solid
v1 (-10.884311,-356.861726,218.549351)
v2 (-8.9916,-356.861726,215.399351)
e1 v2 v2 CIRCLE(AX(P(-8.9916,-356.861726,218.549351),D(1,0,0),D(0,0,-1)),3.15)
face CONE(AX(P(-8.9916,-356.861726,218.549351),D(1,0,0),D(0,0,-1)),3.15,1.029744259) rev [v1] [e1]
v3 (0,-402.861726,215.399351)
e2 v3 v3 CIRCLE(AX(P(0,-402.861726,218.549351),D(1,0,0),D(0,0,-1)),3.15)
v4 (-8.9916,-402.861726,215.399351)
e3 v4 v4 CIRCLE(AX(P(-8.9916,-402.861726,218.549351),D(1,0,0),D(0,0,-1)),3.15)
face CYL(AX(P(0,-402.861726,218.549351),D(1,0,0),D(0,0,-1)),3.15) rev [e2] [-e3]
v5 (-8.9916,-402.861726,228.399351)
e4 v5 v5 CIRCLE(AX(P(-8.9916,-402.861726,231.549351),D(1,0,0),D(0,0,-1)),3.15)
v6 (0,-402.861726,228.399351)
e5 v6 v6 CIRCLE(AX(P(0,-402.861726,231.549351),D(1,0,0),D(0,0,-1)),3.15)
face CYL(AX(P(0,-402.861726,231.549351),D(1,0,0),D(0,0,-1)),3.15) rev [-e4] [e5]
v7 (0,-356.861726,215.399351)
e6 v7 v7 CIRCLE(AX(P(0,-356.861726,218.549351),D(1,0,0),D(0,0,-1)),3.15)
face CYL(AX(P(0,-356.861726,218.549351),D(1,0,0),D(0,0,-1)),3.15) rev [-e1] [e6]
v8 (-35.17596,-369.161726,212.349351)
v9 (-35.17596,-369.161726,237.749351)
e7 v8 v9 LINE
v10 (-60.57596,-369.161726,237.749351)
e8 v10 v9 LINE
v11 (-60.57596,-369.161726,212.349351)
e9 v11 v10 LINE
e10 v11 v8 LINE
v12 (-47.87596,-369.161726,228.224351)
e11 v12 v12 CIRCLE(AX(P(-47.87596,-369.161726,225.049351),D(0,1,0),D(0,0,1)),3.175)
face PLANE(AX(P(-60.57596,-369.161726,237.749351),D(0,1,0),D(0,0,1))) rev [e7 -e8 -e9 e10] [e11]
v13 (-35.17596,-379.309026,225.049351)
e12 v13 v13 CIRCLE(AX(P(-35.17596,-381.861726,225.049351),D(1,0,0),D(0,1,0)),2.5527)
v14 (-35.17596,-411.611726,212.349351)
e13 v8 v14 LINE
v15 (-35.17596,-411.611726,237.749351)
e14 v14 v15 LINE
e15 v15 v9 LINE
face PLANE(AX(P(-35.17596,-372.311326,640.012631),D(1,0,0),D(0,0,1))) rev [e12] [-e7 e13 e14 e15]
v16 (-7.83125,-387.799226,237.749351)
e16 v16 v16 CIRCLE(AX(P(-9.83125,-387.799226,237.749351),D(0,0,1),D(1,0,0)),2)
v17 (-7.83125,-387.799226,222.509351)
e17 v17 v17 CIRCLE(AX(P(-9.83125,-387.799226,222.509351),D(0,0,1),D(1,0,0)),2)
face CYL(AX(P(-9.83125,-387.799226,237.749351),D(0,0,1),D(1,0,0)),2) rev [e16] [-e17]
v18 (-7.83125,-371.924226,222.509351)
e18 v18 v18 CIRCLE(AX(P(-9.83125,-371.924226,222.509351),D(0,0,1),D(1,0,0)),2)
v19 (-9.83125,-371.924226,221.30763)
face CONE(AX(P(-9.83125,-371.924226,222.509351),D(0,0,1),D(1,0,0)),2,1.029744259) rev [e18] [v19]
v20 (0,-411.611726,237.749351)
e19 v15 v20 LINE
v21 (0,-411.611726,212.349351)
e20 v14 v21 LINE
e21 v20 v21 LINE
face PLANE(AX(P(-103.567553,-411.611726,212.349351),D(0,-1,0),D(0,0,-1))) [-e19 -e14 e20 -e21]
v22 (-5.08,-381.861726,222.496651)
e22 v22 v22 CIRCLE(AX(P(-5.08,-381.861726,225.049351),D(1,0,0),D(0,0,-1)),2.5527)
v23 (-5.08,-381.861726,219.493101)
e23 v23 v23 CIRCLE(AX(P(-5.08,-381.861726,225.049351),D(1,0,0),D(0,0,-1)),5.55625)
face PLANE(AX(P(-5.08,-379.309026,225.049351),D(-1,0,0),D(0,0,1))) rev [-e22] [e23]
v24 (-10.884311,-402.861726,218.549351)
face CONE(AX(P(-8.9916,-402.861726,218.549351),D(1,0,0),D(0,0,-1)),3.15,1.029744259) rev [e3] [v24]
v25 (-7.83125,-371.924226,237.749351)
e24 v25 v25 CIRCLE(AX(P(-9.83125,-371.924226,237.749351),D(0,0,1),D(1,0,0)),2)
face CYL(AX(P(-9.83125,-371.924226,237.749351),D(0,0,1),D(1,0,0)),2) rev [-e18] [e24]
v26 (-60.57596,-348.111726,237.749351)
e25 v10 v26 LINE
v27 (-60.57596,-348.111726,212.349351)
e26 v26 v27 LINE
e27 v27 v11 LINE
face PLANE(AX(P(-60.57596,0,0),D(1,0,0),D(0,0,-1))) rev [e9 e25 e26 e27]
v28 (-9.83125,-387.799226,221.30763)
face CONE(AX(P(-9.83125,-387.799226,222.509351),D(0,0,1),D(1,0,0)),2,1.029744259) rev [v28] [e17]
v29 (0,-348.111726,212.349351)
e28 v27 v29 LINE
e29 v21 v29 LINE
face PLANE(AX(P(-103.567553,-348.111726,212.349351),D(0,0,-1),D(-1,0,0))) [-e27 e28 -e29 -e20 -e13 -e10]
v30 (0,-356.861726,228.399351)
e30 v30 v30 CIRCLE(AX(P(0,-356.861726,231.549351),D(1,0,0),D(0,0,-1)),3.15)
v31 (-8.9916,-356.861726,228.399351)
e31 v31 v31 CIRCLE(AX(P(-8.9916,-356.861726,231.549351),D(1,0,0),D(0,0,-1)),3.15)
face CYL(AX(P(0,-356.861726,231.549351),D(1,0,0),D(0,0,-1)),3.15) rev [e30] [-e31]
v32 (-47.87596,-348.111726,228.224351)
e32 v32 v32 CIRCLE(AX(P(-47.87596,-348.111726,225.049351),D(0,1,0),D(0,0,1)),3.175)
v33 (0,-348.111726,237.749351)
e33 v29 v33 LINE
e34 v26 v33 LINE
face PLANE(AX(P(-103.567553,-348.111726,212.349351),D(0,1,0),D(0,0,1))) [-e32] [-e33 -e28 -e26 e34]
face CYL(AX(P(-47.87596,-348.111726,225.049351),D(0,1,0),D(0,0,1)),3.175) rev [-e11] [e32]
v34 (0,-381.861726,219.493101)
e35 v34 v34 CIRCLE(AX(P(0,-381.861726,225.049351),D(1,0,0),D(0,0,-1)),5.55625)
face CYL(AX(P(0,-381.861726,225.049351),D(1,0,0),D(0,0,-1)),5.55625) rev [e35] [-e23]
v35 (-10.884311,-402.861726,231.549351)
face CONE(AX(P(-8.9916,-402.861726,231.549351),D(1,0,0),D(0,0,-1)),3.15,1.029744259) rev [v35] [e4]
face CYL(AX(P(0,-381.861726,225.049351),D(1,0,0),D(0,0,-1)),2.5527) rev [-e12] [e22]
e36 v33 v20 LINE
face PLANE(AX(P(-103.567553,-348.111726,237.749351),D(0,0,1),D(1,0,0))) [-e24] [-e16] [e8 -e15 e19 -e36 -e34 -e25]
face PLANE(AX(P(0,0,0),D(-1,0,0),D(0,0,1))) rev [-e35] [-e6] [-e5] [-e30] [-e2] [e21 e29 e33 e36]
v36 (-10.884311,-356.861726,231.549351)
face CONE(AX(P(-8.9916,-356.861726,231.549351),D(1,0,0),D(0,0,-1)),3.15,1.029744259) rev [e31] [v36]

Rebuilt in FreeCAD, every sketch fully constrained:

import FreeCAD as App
import Part
import Sketcher
Q = App.Units.Quantity


def add_polygon(sketch, points):
    """Adds a closed chain of lines whose ends are joined by coincident constraints."""
    first, n = sketch.GeometryCount, len(points)
    for a, b in zip(points, points[1:] + points[:1]):
        sketch.addGeometry(Part.LineSegment(App.Vector(*a, 0), App.Vector(*b, 0)), False)
    for i in range(n):
        sketch.addConstraint(Sketcher.Constraint("Coincident", first + i, 2, first + (i + 1) % n, 1))

doc = App.newDocument("Part")
body = doc.addObject("PartDesign::Body", "Body")

sketch1 = body.newObject("Sketcher::SketchObject", "Sketch")
sketch1.AttachmentSupport = (doc.getObject("YZ_Plane"), [""])
sketch1.MapMode = "FlatFace"
add_polygon(sketch1, [(-348, 238), (-412, 238), (-412, 212), (-348, 212)])
sketch1.addConstraint([
    Sketcher.Constraint("Horizontal", 0),
    Sketcher.Constraint("Vertical", 1),
    Sketcher.Constraint("Horizontal", 2),
    Sketcher.Constraint("Vertical", 3),
    Sketcher.Constraint("DistanceY", 1, 2, 1, 1, Q("1 in")),
    Sketcher.Constraint("DistanceX", 0, 2, 0, 1, Q("2.5 in")),
    Sketcher.Constraint("DistanceY", -1, 1, 0, 2, 237.749351),
    Sketcher.Constraint("DistanceX", 0, 2, -1, 1, 411.611726),
])
pad1 = body.newObject("PartDesign::Pad", "Pad")
pad1.Profile = sketch1
pad1.Length = 35.17596
pad1.Reversed = True

sketch2 = body.newObject("Sketcher::SketchObject", "Sketch001")
sketch2.AttachmentSupport = (doc.getObject("YZ_Plane"), [""])
sketch2.MapMode = "FlatFace"
sketch2.AttachmentOffset = App.Placement(App.Vector(0, 0, -35.17596), App.Rotation())
add_polygon(sketch2, [(-348, 212), (-369, 212), (-369, 238), (-348, 238)])
sketch2.addConstraint([
    Sketcher.Constraint("Horizontal", 0),
    Sketcher.Constraint("Vertical", 1),
    Sketcher.Constraint("Horizontal", 2),
    Sketcher.Constraint("Vertical", 3),
    Sketcher.Constraint("DistanceY", 1, 1, 1, 2, Q("1 in")),
    Sketcher.Constraint("DistanceX", 0, 2, 0, 1, 21.05),
    Sketcher.Constraint("DistanceY", -1, 1, 0, 2, 212.349351),
    Sketcher.Constraint("DistanceX", 0, 2, -1, 1, 369.161726),
])
pad2 = body.newObject("PartDesign::Pad", "Pad001")
pad2.Profile = sketch2
pad2.Length = Q("1 in")
pad2.Reversed = True

sketch3 = body.newObject("Sketcher::SketchObject", "Sketch002")
sketch3.AttachmentSupport = (doc.getObject("XZ_Plane"), [""])
sketch3.MapMode = "FlatFace"
sketch3.AttachmentOffset = App.Placement(App.Vector(0, 0, 348.111726), App.Rotation())
sketch3.addGeometry(Part.Circle(App.Vector(-47.9, 225, 0), App.Vector(0, 0, 1), 3.2), False)
sketch3.addConstraint([
    Sketcher.Constraint("Diameter", 0, Q("0.25 in")),
    Sketcher.Constraint("DistanceX", 0, 3, -1, 1, 47.87596),
    Sketcher.Constraint("DistanceY", -1, 1, 0, 3, 225.049351),
])
doc.recompute()
hole = body.newObject("PartDesign::Hole", "Hole")
hole.Profile = sketch3
hole.ThreadType = "None"
hole.Diameter = Q("0.25 in")
hole.DepthType = "ThroughAll"
hole.Reversed = True

sketch4 = body.newObject("Sketcher::SketchObject", "Sketch003")
sketch4.AttachmentSupport = (doc.getObject("YZ_Plane"), [""])
sketch4.MapMode = "FlatFace"
sketch4.addGeometry([
    Part.Circle(App.Vector(-356.9, 231.5, 0), App.Vector(0, 0, 1), 3.1),
    Part.Circle(App.Vector(-356.9, 218.5, 0), App.Vector(0, 0, 1), 3.1),
    Part.Circle(App.Vector(-402.9, 231.5, 0), App.Vector(0, 0, 1), 3.1),
    Part.Circle(App.Vector(-402.9, 218.5, 0), App.Vector(0, 0, 1), 3.1),
], False)
sketch4.addConstraint([
    Sketcher.Constraint("Equal", 0, 1),
    Sketcher.Constraint("Equal", 1, 2),
    Sketcher.Constraint("Equal", 2, 3),
    Sketcher.Constraint("Horizontal", 0, 3, 2, 3),
    Sketcher.Constraint("Horizontal", 1, 3, 3, 3),
    Sketcher.Constraint("Vertical", 0, 3, 1, 3),
    Sketcher.Constraint("Vertical", 2, 3, 3, 3),
    Sketcher.Constraint("Diameter", 0, 6.3),
    Sketcher.Constraint("DistanceY", 1, 3, 0, 3, 13.0),
    Sketcher.Constraint("DistanceX", 2, 3, 0, 3, 46.0),
    Sketcher.Constraint("DistanceY", -1, 1, 0, 3, 231.549351),
    Sketcher.Constraint("DistanceX", 0, 3, -1, 1, 356.861726),
])
doc.recompute()
hole2 = body.newObject("PartDesign::Hole", "Hole001")
hole2.Profile = sketch4
hole2.ThreadType = "None"
hole2.Diameter = 6.3
hole2.DepthType = "Dimension"
hole2.Depth = Q("0.354 in")
hole2.DrillPoint = "Angled"
hole2.DrillPointAngle = 118

sketch5 = body.newObject("Sketcher::SketchObject", "Sketch004")
sketch5.AttachmentSupport = (doc.getObject("XY_Plane"), [""])
sketch5.MapMode = "FlatFace"
sketch5.AttachmentOffset = App.Placement(App.Vector(0, 0, 237.749351), App.Rotation())
sketch5.addGeometry([
    Part.Circle(App.Vector(-9.8, -371.9, 0), App.Vector(0, 0, 1), 2),
    Part.Circle(App.Vector(-9.8, -387.8, 0), App.Vector(0, 0, 1), 2),
], False)
sketch5.addConstraint([
    Sketcher.Constraint("Equal", 0, 1),
    Sketcher.Constraint("Vertical", 0, 3, 1, 3),
    Sketcher.Constraint("Diameter", 0, 4.0),
    Sketcher.Constraint("DistanceY", 1, 3, 0, 3, Q("0.625 in")),
    Sketcher.Constraint("DistanceX", 0, 3, -1, 1, 9.83125),
    Sketcher.Constraint("DistanceY", 0, 3, -1, 1, 371.924226),
])
doc.recompute()
hole3 = body.newObject("PartDesign::Hole", "Hole002")
hole3.Profile = sketch5
hole3.ThreadType = "None"
hole3.Diameter = 4
hole3.DepthType = "Dimension"
hole3.Depth = Q("0.6 in")
hole3.DrillPoint = "Angled"
hole3.DrillPointAngle = 118

sketch6 = body.newObject("Sketcher::SketchObject", "Sketch005")
sketch6.AttachmentSupport = (doc.getObject("YZ_Plane"), [""])
sketch6.MapMode = "FlatFace"
sketch6.addGeometry(Part.Circle(App.Vector(-381.9, 225, 0), App.Vector(0, 0, 1), 2.6), False)
sketch6.addConstraint([
    Sketcher.Constraint("Diameter", 0, Q("0.201 in")),
    Sketcher.Constraint("DistanceY", -1, 1, 0, 3, 225.049351),
    Sketcher.Constraint("DistanceX", 0, 3, -1, 1, 381.861726),
])
doc.recompute()
hole4 = body.newObject("PartDesign::Hole", "Hole003")
hole4.Profile = sketch6
hole4.ThreadType = "None"
hole4.Diameter = Q("0.201 in")
hole4.DepthType = "Dimension"
hole4.Depth = 35.17596
hole4.DrillPoint = "Flat"
hole4.HoleCutType = "Counterbore"
hole4.HoleCutDiameter = Q("0.4375 in")
hole4.HoleCutDepth = Q("0.2 in")

doc.recompute()
